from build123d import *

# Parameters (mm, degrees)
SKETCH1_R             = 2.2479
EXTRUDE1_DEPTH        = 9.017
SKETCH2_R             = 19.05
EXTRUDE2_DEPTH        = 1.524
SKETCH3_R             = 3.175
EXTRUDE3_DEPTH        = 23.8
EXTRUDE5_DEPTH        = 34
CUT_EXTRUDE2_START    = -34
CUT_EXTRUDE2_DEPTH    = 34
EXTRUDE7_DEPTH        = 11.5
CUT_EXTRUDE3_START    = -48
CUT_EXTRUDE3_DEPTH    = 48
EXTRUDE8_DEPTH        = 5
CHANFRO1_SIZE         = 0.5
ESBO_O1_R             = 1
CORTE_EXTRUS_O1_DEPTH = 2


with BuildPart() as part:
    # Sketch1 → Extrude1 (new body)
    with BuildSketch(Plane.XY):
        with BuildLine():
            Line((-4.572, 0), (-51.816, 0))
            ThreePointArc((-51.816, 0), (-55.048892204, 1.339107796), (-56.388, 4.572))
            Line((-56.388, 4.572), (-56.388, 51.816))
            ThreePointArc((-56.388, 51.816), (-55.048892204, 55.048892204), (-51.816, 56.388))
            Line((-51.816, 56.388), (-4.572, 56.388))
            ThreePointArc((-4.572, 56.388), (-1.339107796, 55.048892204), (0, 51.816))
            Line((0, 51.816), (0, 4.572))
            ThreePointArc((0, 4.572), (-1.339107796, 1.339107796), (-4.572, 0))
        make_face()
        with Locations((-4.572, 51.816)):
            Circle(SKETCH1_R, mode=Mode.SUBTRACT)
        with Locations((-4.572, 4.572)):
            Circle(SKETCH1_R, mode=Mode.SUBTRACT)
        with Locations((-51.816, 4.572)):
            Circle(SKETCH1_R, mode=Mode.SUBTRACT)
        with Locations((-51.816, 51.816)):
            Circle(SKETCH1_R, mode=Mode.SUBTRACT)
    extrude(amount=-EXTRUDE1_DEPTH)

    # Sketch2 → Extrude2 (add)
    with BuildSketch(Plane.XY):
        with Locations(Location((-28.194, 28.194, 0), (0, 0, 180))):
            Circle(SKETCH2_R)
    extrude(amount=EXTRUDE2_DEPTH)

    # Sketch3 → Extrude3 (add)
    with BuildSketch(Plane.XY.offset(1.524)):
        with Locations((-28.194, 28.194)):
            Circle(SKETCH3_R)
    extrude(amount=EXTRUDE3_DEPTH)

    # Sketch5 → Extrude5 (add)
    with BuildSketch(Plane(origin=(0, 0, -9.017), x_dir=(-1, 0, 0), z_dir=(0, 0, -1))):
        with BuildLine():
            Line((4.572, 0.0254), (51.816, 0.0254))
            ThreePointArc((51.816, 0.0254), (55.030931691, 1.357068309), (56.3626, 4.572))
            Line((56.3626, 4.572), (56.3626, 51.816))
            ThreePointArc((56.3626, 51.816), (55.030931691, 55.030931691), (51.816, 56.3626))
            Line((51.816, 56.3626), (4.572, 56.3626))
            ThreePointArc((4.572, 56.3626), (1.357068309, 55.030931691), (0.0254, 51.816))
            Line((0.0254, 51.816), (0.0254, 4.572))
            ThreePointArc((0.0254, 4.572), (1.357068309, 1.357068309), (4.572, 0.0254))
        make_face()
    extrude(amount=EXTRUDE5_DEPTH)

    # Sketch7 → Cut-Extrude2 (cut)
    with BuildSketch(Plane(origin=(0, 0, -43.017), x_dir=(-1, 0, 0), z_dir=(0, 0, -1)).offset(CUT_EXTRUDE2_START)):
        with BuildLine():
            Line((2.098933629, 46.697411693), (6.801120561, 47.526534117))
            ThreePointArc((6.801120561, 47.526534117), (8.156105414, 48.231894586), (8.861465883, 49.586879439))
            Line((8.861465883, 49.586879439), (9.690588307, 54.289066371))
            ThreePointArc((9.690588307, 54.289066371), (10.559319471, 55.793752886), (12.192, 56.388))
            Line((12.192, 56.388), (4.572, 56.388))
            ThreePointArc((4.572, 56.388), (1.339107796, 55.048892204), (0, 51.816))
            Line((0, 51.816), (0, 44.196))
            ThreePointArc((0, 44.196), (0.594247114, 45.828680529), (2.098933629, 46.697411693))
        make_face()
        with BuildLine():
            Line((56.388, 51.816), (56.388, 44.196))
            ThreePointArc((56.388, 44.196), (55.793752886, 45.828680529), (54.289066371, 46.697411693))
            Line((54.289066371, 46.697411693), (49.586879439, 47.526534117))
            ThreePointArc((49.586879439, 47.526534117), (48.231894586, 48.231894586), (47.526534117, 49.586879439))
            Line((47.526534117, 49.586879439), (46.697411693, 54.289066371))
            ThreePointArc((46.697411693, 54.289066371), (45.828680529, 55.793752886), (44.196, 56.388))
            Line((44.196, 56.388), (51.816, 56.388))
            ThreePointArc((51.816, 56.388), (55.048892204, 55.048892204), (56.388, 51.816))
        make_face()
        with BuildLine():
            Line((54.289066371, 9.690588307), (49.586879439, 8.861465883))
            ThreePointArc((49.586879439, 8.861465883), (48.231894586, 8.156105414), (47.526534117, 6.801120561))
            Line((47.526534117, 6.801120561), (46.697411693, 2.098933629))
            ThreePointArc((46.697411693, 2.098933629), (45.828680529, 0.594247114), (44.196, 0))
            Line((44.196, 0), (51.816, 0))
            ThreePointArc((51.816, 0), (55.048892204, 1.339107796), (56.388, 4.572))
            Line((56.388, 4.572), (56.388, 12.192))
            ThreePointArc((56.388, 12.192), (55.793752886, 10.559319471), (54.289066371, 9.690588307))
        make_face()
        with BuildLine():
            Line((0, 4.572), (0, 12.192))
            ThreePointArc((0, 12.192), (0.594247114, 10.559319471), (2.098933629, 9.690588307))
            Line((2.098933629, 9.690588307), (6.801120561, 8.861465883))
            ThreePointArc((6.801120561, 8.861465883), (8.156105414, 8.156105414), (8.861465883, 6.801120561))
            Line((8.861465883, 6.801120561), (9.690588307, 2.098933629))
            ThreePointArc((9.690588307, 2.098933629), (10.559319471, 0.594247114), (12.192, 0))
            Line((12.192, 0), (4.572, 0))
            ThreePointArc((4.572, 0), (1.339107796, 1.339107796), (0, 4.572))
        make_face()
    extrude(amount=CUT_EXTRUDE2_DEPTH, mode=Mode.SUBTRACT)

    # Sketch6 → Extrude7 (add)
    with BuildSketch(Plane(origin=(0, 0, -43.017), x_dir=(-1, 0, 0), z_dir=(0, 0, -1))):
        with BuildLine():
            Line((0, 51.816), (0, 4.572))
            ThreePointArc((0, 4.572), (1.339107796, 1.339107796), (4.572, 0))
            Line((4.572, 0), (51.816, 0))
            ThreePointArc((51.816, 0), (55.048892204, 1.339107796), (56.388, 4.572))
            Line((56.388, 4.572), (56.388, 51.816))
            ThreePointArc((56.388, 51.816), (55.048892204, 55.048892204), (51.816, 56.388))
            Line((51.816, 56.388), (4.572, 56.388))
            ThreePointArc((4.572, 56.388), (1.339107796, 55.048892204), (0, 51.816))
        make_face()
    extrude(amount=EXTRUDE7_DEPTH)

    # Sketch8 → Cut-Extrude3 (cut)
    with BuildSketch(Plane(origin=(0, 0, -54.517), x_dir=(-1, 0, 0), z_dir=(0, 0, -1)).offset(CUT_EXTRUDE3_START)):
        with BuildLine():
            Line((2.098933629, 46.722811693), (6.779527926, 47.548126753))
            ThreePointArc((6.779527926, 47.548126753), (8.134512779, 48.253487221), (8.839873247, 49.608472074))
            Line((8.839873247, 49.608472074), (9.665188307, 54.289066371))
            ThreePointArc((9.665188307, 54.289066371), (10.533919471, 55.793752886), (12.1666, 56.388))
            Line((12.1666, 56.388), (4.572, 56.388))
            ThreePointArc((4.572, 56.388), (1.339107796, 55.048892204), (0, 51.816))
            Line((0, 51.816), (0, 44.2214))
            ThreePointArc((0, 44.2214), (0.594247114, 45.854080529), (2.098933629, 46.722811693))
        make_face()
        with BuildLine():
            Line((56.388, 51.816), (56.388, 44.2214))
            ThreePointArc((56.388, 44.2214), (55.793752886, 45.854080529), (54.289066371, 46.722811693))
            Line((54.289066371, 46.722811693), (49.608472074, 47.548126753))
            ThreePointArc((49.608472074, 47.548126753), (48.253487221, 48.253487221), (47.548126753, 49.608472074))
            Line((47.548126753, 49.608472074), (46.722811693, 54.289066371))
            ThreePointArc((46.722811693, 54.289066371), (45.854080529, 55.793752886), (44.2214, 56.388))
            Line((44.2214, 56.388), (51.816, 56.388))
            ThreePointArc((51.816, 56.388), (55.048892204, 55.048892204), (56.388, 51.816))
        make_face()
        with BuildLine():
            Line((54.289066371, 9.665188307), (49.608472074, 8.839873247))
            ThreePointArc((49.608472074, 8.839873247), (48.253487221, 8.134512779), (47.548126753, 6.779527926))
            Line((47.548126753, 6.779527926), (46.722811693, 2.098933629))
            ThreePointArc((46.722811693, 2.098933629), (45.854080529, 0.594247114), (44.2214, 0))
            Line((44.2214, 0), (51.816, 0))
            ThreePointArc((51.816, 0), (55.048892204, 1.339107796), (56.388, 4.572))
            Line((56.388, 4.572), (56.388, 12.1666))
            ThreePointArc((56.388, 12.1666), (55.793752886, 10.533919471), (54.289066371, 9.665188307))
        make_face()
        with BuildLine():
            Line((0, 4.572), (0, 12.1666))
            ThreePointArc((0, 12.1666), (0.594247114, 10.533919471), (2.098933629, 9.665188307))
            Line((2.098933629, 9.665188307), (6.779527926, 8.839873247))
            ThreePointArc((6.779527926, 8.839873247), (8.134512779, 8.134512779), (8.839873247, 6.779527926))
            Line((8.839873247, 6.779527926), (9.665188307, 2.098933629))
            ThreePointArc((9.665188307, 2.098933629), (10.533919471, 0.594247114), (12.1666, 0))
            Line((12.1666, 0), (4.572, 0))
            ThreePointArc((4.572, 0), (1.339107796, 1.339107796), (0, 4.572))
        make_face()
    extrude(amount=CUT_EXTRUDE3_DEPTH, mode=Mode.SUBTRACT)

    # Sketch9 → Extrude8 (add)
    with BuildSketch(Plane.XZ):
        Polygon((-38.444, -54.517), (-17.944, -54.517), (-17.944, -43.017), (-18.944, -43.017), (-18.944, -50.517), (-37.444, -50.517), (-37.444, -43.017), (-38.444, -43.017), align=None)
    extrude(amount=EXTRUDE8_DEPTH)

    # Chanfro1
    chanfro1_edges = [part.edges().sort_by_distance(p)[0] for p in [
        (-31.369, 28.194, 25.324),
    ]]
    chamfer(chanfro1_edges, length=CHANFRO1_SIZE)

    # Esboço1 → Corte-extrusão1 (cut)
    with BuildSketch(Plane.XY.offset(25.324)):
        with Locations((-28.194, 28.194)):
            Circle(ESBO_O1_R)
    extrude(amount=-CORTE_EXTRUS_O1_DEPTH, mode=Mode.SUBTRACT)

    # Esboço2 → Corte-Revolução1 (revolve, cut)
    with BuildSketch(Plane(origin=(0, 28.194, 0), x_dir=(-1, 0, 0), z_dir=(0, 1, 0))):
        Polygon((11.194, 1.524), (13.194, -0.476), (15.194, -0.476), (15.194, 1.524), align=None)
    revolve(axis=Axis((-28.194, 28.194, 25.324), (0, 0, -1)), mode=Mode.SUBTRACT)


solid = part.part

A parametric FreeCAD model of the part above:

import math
import FreeCAD as App
import Part
import Sketcher

V = App.Vector
Q = App.Units.Quantity


def edges_at(feature, points):
    """Names of the edges that pass closest to the given points."""
    edges = feature.Shape.Edges
    near = lambda p: min(range(len(edges)), key=lambda i: edges[i].distToShape(Part.Vertex(*p))[0])
    return sorted({f"Edge{near(p) + 1}" for p in points})


def add_polygon(sketch, points):
    """Adds a closed chain of lines whose ends are joined by coincident constraints."""
    first, n = sketch.GeometryCount, len(points)
    for a, b in zip(points, points[1:] + points[:1]):
        sketch.addGeometry(Part.LineSegment(App.Vector(*a, 0), App.Vector(*b, 0)), False)
    for i in range(n):
        sketch.addConstraint(Sketcher.Constraint("Coincident", first + i, 2, first + (i + 1) % n, 1))

doc = App.newDocument("Part")
body = doc.addObject("PartDesign::Body", "Body")

sketch1 = body.newObject("Sketcher::SketchObject", "Sketch")
sketch1.AttachmentSupport = (doc.getObject("XY_Plane"), [""])
sketch1.MapMode = "FlatFace"
sketch1.addGeometry(Part.LineSegment(V(-51.8, 0, 0), V(-4.6, 0, 0)), False)
sketch1.addGeometry(Part.ArcOfCircle(Part.Circle(V(-4.6, 4.6, 0), V(0, 0, 1), 4.6), math.radians(-90), math.radians(0)), False)
sketch1.addGeometry(Part.LineSegment(V(0, 4.6, 0), V(0, 51.8, 0)), False)
sketch1.addGeometry(Part.ArcOfCircle(Part.Circle(V(-4.6, 51.8, 0), V(0, 0, 1), 4.6), math.radians(0), math.radians(90)), False)
sketch1.addGeometry(Part.LineSegment(V(-4.6, 56.4, 0), V(-51.8, 56.4, 0)), False)
sketch1.addGeometry(Part.ArcOfCircle(Part.Circle(V(-51.8, 51.8, 0), V(0, 0, 1), 4.6), math.radians(90), math.radians(180)), False)
sketch1.addGeometry(Part.LineSegment(V(-56.4, 51.8, 0), V(-56.4, 4.6, 0)), False)
sketch1.addGeometry(Part.ArcOfCircle(Part.Circle(V(-51.8, 4.6, 0), V(0, 0, 1), 4.6), math.radians(180), math.radians(270)), False)
sketch1.addGeometry(Part.Circle(V(-4.6, 4.6, 0), V(0, 0, 1), 2.2), False)
sketch1.addGeometry(Part.Circle(V(-51.8, 4.6, 0), V(0, 0, 1), 2.2), False)
sketch1.addGeometry(Part.Circle(V(-4.6, 51.8, 0), V(0, 0, 1), 2.2), False)
sketch1.addGeometry(Part.Circle(V(-51.8, 51.8, 0), V(0, 0, 1), 2.2), False)
sketch1.addConstraint(Sketcher.Constraint("Tangent", 0, 2, 1, 1))
sketch1.addConstraint(Sketcher.Constraint("Tangent", 1, 2, 2, 1))
sketch1.addConstraint(Sketcher.Constraint("Tangent", 2, 2, 3, 1))
sketch1.addConstraint(Sketcher.Constraint("Tangent", 3, 2, 4, 1))
sketch1.addConstraint(Sketcher.Constraint("Tangent", 4, 2, 5, 1))
sketch1.addConstraint(Sketcher.Constraint("Tangent", 5, 2, 6, 1))
sketch1.addConstraint(Sketcher.Constraint("Tangent", 6, 2, 7, 1))
sketch1.addConstraint(Sketcher.Constraint("Tangent", 7, 2, 0, 1))
sketch1.addConstraint(Sketcher.Constraint("Horizontal", 0))
sketch1.addConstraint(Sketcher.Constraint("Vertical", 2))
sketch1.addConstraint(Sketcher.Constraint("Horizontal", 4))
sketch1.addConstraint(Sketcher.Constraint("Vertical", 6))
sketch1.addConstraint(Sketcher.Constraint("Coincident", 8, 3, 1, 3))
sketch1.addConstraint(Sketcher.Constraint("Coincident", 9, 3, 7, 3))
sketch1.addConstraint(Sketcher.Constraint("Coincident", 10, 3, 3, 3))
sketch1.addConstraint(Sketcher.Constraint("Coincident", 11, 3, 5, 3))
sketch1.addConstraint(Sketcher.Constraint("Equal", 1, 3))
sketch1.addConstraint(Sketcher.Constraint("Equal", 3, 5))
sketch1.addConstraint(Sketcher.Constraint("Equal", 5, 7))
sketch1.addConstraint(Sketcher.Constraint("Equal", 8, 9))
sketch1.addConstraint(Sketcher.Constraint("Equal", 9, 10))
sketch1.addConstraint(Sketcher.Constraint("Equal", 10, 11))
sketch1.addConstraint(Sketcher.Constraint("PointOnObject", 0, 2, -1))
sketch1.addConstraint(Sketcher.Constraint("PointOnObject", 1, 2, -2))
sketch1.addConstraint(Sketcher.Constraint("Equal", 4, 2))
sketch1.addConstraint(Sketcher.Constraint("Radius", 1, 4.572))
sketch1.addConstraint(Sketcher.Constraint("Diameter", 8, 4.4958))
sketch1.addConstraint(Sketcher.Constraint("DistanceX", 0, 1, 0, 2, 47.244))
pad1 = body.newObject("PartDesign::Pad", "Pad")
pad1.Profile = sketch1
pad1.Length = 9.017
pad1.Reversed = True

sketch2 = body.newObject("Sketcher::SketchObject", "Sketch001")
sketch2.AttachmentSupport = (doc.getObject("XY_Plane"), [""])
sketch2.MapMode = "FlatFace"
sketch2.addGeometry(Part.Circle(V(-28, 28, 0), V(0, 0, 1), 19), False)
sketch2.addConstraint(Sketcher.Constraint("Diameter", 0, 38.1))
sketch2.addConstraint(Sketcher.Constraint("DistanceX", 0, 3, -1, 1, 28.194))
sketch2.addConstraint(Sketcher.Constraint("DistanceY", -1, 1, 0, 3, 28.194))
pad2 = body.newObject("PartDesign::Pad", "Pad001")
pad2.Profile = sketch2
pad2.Length = 1.524

sketch3 = body.newObject("Sketcher::SketchObject", "Sketch002")
sketch3.AttachmentSupport = (doc.getObject("XY_Plane"), [""])
sketch3.MapMode = "FlatFace"
sketch3.AttachmentOffset = App.Placement(V(0, 0, 1.524), App.Rotation())
sketch3.addGeometry(Part.Circle(V(-28.2, 28.2, 0), V(0, 0, 1), 3.2), False)
sketch3.addConstraint(Sketcher.Constraint("Diameter", 0, 6.35))
sketch3.addConstraint(Sketcher.Constraint("DistanceX", 0, 3, -1, 1, 28.194))
sketch3.addConstraint(Sketcher.Constraint("DistanceY", -1, 1, 0, 3, 28.194))
pad3 = body.newObject("PartDesign::Pad", "Pad002")
pad3.Profile = sketch3
pad3.Length = 23.8

sketch4 = body.newObject("Sketcher::SketchObject", "Sketch003")
sketch4.AttachmentSupport = (doc.getObject("XY_Plane"), [""])
sketch4.MapMode = "FlatFace"
sketch4.AttachmentOffset = App.Placement(V(0, 0, -9.017), App.Rotation())
sketch4.addGeometry(Part.LineSegment(V(-4.6, 0, 0), V(-51.8, 0, 0)), False)
sketch4.addGeometry(Part.ArcOfCircle(Part.Circle(V(-51.8, 4.6, 0), V(0, 0, 1), 4.5), math.radians(-180), math.radians(-90)), False)
sketch4.addGeometry(Part.LineSegment(V(-56.4, 4.6, 0), V(-56.4, 51.8, 0)), False)
sketch4.addGeometry(Part.ArcOfCircle(Part.Circle(V(-51.8, 51.8, 0), V(0, 0, 1), 4.5), math.radians(90), math.radians(180)), False)
sketch4.addGeometry(Part.LineSegment(V(-51.8, 56.4, 0), V(-4.6, 56.4, 0)), False)
sketch4.addGeometry(Part.ArcOfCircle(Part.Circle(V(-4.6, 51.8, 0), V(0, 0, 1), 4.5), math.radians(0), math.radians(90)), False)
sketch4.addGeometry(Part.LineSegment(V(0, 51.8, 0), V(0, 4.6, 0)), False)
sketch4.addGeometry(Part.ArcOfCircle(Part.Circle(V(-4.6, 4.6, 0), V(0, 0, 1), 4.5), math.radians(-90), math.radians(0)), False)
sketch4.addConstraint(Sketcher.Constraint("Tangent", 0, 2, 1, 2))
sketch4.addConstraint(Sketcher.Constraint("Tangent", 1, 1, 2, 1))
sketch4.addConstraint(Sketcher.Constraint("Tangent", 2, 2, 3, 2))
sketch4.addConstraint(Sketcher.Constraint("Tangent", 3, 1, 4, 1))
sketch4.addConstraint(Sketcher.Constraint("Tangent", 4, 2, 5, 2))
sketch4.addConstraint(Sketcher.Constraint("Tangent", 5, 1, 6, 1))
sketch4.addConstraint(Sketcher.Constraint("Tangent", 6, 2, 7, 2))
sketch4.addConstraint(Sketcher.Constraint("Tangent", 7, 1, 0, 1))
sketch4.addConstraint(Sketcher.Constraint("Horizontal", 0))
sketch4.addConstraint(Sketcher.Constraint("Vertical", 2))
sketch4.addConstraint(Sketcher.Constraint("Horizontal", 4))
sketch4.addConstraint(Sketcher.Constraint("Vertical", 6))
sketch4.addConstraint(Sketcher.Constraint("Equal", 1, 3))
sketch4.addConstraint(Sketcher.Constraint("Equal", 3, 5))
sketch4.addConstraint(Sketcher.Constraint("Equal", 5, 7))
sketch4.addConstraint(Sketcher.Constraint("Equal", 4, 2))
sketch4.addConstraint(Sketcher.Constraint("Radius", 1, 4.5466))
sketch4.addConstraint(Sketcher.Constraint("DistanceX", 0, 2, 0, 1, 47.244))
sketch4.addConstraint(Sketcher.Constraint("DistanceX", 1, 3, -1, 1, 51.816))
sketch4.addConstraint(Sketcher.Constraint("DistanceY", -1, 1, 1, 3, 4.572))
pad4 = body.newObject("PartDesign::Pad", "Pad003")
pad4.Profile = sketch4
pad4.Length = 34
pad4.Reversed = True

sketch5 = body.newObject("Sketcher::SketchObject", "Sketch004")
sketch5.AttachmentSupport = (doc.getObject("XY_Plane"), [""])
sketch5.MapMode = "FlatFace"
sketch5.AttachmentOffset = App.Placement(V(0, 0, -9.017), App.Rotation())
sketch5.addGeometry(Part.LineSegment(V(-2.1, 46.7, 0), V(-6.8, 47.5, 0)), False)
sketch5.addGeometry(Part.ArcOfCircle(Part.Circle(V(-6.4, 50, 0), V(0, 0, 1), 2.5), math.radians(-170), math.radians(-100)), False)
sketch5.addGeometry(Part.LineSegment(V(-8.9, 49.6, 0), V(-9.7, 54.3, 0)), False)
sketch5.addGeometry(Part.ArcOfCircle(Part.Circle(V(-12.2, 53.8, 0), V(0, 0, 1), 2.5), math.radians(10), math.radians(90)), False)
sketch5.addGeometry(Part.LineSegment(V(-12.2, 56.4, 0), V(-4.6, 56.4, 0)), False)
sketch5.addGeometry(Part.ArcOfCircle(Part.Circle(V(-4.6, 51.8, 0), V(0, 0, 1), 4.6), math.radians(0), math.radians(90)), False)
sketch5.addGeometry(Part.LineSegment(V(0, 51.8, 0), V(0, 44.2, 0)), False)
sketch5.addGeometry(Part.ArcOfCircle(Part.Circle(V(-2.5, 44.2, 0), V(0, 0, 1), 2.5), math.radians(0), math.radians(80)), False)
sketch5.addGeometry(Part.LineSegment(V(-56.4, 44.2, 0), V(-56.4, 51.8, 0)), False)
sketch5.addGeometry(Part.ArcOfCircle(Part.Circle(V(-51.8, 51.8, 0), V(0, 0, 1), 4.6), math.radians(90), math.radians(180)), False)
sketch5.addGeometry(Part.LineSegment(V(-51.8, 56.4, 0), V(-44.2, 56.4, 0)), False)
sketch5.addGeometry(Part.ArcOfCircle(Part.Circle(V(-44.2, 53.8, 0), V(0, 0, 1), 2.5), math.radians(90), math.radians(170)), False)
sketch5.addGeometry(Part.LineSegment(V(-46.7, 54.3, 0), V(-47.5, 49.6, 0)), False)
sketch5.addGeometry(Part.ArcOfCircle(Part.Circle(V(-50, 50, 0), V(0, 0, 1), 2.5), math.radians(-80), math.radians(-10)), False)
sketch5.addGeometry(Part.LineSegment(V(-49.6, 47.5, 0), V(-54.3, 46.7, 0)), False)
sketch5.addGeometry(Part.ArcOfCircle(Part.Circle(V(-53.8, 44.2, 0), V(0, 0, 1), 2.5), math.radians(100), math.radians(180)), False)
sketch5.addGeometry(Part.LineSegment(V(-54.3, 9.7, 0), V(-49.6, 8.9, 0)), False)
sketch5.addGeometry(Part.ArcOfCircle(Part.Circle(V(-50, 6.4, 0), V(0, 0, 1), 2.5), math.radians(10), math.radians(80)), False)
sketch5.addGeometry(Part.LineSegment(V(-47.5, 6.8, 0), V(-46.7, 2.1, 0)), False)
sketch5.addGeometry(Part.ArcOfCircle(Part.Circle(V(-44.2, 2.5, 0), V(0, 0, 1), 2.5), math.radians(-170), math.radians(-90)), False)
sketch5.addGeometry(Part.LineSegment(V(-44.2, 0, 0), V(-51.8, 0, 0)), False)
sketch5.addGeometry(Part.ArcOfCircle(Part.Circle(V(-51.8, 4.6, 0), V(0, 0, 1), 4.6), math.radians(180), math.radians(270)), False)
sketch5.addGeometry(Part.LineSegment(V(-56.4, 4.6, 0), V(-56.4, 12.2, 0)), False)
sketch5.addGeometry(Part.ArcOfCircle(Part.Circle(V(-53.8, 12.2, 0), V(0, 0, 1), 2.5), math.radians(180), math.radians(260)), False)
sketch5.addGeometry(Part.LineSegment(V(0, 12.2, 0), V(0, 4.6, 0)), False)
sketch5.addGeometry(Part.ArcOfCircle(Part.Circle(V(-4.6, 4.6, 0), V(0, 0, 1), 4.6), math.radians(-90), math.radians(0)), False)
sketch5.addGeometry(Part.LineSegment(V(-4.6, 0, 0), V(-12.2, 0, 0)), False)
sketch5.addGeometry(Part.ArcOfCircle(Part.Circle(V(-12.2, 2.5, 0), V(0, 0, 1), 2.5), math.radians(-90), math.radians(-10)), False)
sketch5.addGeometry(Part.LineSegment(V(-9.7, 2.1, 0), V(-8.9, 6.8, 0)), False)
sketch5.addGeometry(Part.ArcOfCircle(Part.Circle(V(-6.4, 6.4, 0), V(0, 0, 1), 2.5), math.radians(100), math.radians(170)), False)
sketch5.addGeometry(Part.LineSegment(V(-6.8, 8.9, 0), V(-2.1, 9.7, 0)), False)
sketch5.addGeometry(Part.ArcOfCircle(Part.Circle(V(-2.5, 12.2, 0), V(0, 0, 1), 2.5), math.radians(-80), math.radians(0)), False)
sketch5.addConstraint(Sketcher.Constraint("Tangent", 0, 2, 1, 2))
sketch5.addConstraint(Sketcher.Constraint("Tangent", 1, 1, 2, 1))
sketch5.addConstraint(Sketcher.Constraint("Tangent", 2, 2, 3, 1))
sketch5.addConstraint(Sketcher.Constraint("Tangent", 3, 2, 4, 1))
sketch5.addConstraint(Sketcher.Constraint("Tangent", 4, 2, 5, 2))
sketch5.addConstraint(Sketcher.Constraint("Tangent", 5, 1, 6, 1))
sketch5.addConstraint(Sketcher.Constraint("Tangent", 6, 2, 7, 1))
sketch5.addConstraint(Sketcher.Constraint("Tangent", 7, 2, 0, 1))
sketch5.addConstraint(Sketcher.Constraint("Tangent", 8, 2, 9, 2))
sketch5.addConstraint(Sketcher.Constraint("Tangent", 9, 1, 10, 1))
sketch5.addConstraint(Sketcher.Constraint("Tangent", 10, 2, 11, 1))
sketch5.addConstraint(Sketcher.Constraint("Tangent", 11, 2, 12, 1))
sketch5.addConstraint(Sketcher.Constraint("Tangent", 12, 2, 13, 2))
sketch5.addConstraint(Sketcher.Constraint("Tangent", 13, 1, 14, 1))
sketch5.addConstraint(Sketcher.Constraint("Tangent", 14, 2, 15, 1))
sketch5.addConstraint(Sketcher.Constraint("Tangent", 15, 2, 8, 1))
sketch5.addConstraint(Sketcher.Constraint("Tangent", 16, 2, 17, 2))
sketch5.addConstraint(Sketcher.Constraint("Tangent", 17, 1, 18, 1))
sketch5.addConstraint(Sketcher.Constraint("Tangent", 18, 2, 19, 1))
sketch5.addConstraint(Sketcher.Constraint("Tangent", 19, 2, 20, 1))
sketch5.addConstraint(Sketcher.Constraint("Tangent", 20, 2, 21, 2))
sketch5.addConstraint(Sketcher.Constraint("Tangent", 21, 1, 22, 1))
sketch5.addConstraint(Sketcher.Constraint("Tangent", 22, 2, 23, 1))
sketch5.addConstraint(Sketcher.Constraint("Tangent", 23, 2, 16, 1))
sketch5.addConstraint(Sketcher.Constraint("Tangent", 24, 2, 25, 2))
sketch5.addConstraint(Sketcher.Constraint("Tangent", 25, 1, 26, 1))
sketch5.addConstraint(Sketcher.Constraint("Tangent", 26, 2, 27, 1))
sketch5.addConstraint(Sketcher.Constraint("Tangent", 27, 2, 28, 1))
sketch5.addConstraint(Sketcher.Constraint("Tangent", 28, 2, 29, 2))
sketch5.addConstraint(Sketcher.Constraint("Tangent", 29, 1, 30, 1))
sketch5.addConstraint(Sketcher.Constraint("Tangent", 30, 2, 31, 1))
sketch5.addConstraint(Sketcher.Constraint("Tangent", 31, 2, 24, 1))
sketch5.addConstraint(Sketcher.Constraint("Horizontal", 4))
sketch5.addConstraint(Sketcher.Constraint("Vertical", 6))
sketch5.addConstraint(Sketcher.Constraint("Vertical", 8))
sketch5.addConstraint(Sketcher.Constraint("Horizontal", 10))
sketch5.addConstraint(Sketcher.Constraint("Horizontal", 20))
sketch5.addConstraint(Sketcher.Constraint("Vertical", 22))
sketch5.addConstraint(Sketcher.Constraint("Vertical", 24))
sketch5.addConstraint(Sketcher.Constraint("Horizontal", 26))
sketch5.addConstraint(Sketcher.Constraint("Equal", 1, 3))
sketch5.addConstraint(Sketcher.Constraint("Equal", 3, 7))
sketch5.addConstraint(Sketcher.Constraint("Equal", 5, 9))
sketch5.addConstraint(Sketcher.Constraint("Equal", 7, 11))
sketch5.addConstraint(Sketcher.Constraint("Equal", 11, 13))
sketch5.addConstraint(Sketcher.Constraint("Equal", 13, 15))
sketch5.addConstraint(Sketcher.Constraint("Equal", 15, 17))
sketch5.addConstraint(Sketcher.Constraint("Equal", 17, 19))
sketch5.addConstraint(Sketcher.Constraint("Equal", 9, 21))
sketch5.addConstraint(Sketcher.Constraint("Equal", 19, 23))
sketch5.addConstraint(Sketcher.Constraint("Equal", 21, 25))
sketch5.addConstraint(Sketcher.Constraint("Equal", 23, 27))
sketch5.addConstraint(Sketcher.Constraint("Equal", 27, 29))
sketch5.addConstraint(Sketcher.Constraint("Equal", 29, 31))
sketch5.addConstraint(Sketcher.Constraint("PointOnObject", 5, 1, -2))
sketch5.addConstraint(Sketcher.Constraint("PointOnObject", 19, 2, -1))
sketch5.addConstraint(Sketcher.Constraint("PointOnObject", 24, 2, -2))
sketch5.addConstraint(Sketcher.Constraint("PointOnObject", 25, 1, -1))
sketch5.addConstraint(Sketcher.Constraint("Perpendicular", 0, 12))
sketch5.addConstraint(Sketcher.Constraint("Perpendicular", 2, 14))
sketch5.addConstraint(Sketcher.Constraint("Perpendicular", 12, 16))
sketch5.addConstraint(Sketcher.Constraint("Perpendicular", 14, 18))
sketch5.addConstraint(Sketcher.Constraint("Perpendicular", 16, 28))
sketch5.addConstraint(Sketcher.Constraint("Perpendicular", 18, 30))
sketch5.addConstraint(Sketcher.Constraint("Horizontal", 5, 3, 9, 3))
sketch5.addConstraint(Sketcher.Constraint("Horizontal", 1, 3, 13, 3))
sketch5.addConstraint(Sketcher.Constraint("Horizontal", 7, 3, 15, 3))
sketch5.addConstraint(Sketcher.Constraint("Horizontal", 17, 3, 29, 3))
sketch5.addConstraint(Sketcher.Constraint("Horizontal", 23, 3, 31, 3))
sketch5.addConstraint(Sketcher.Constraint("Horizontal", 2, 2, 11, 2))
sketch5.addConstraint(Sketcher.Constraint("Vertical", 13, 3, 17, 3))
sketch5.addConstraint(Sketcher.Constraint("Vertical", 11, 3, 19, 3))
sketch5.addConstraint(Sketcher.Constraint("Vertical", 9, 3, 21, 3))
sketch5.addConstraint(Sketcher.Constraint("Equal", 26, 6))
sketch5.addConstraint(Sketcher.Constraint("Angle", 0, Q("170 deg")))
sketch5.addConstraint(Sketcher.Constraint("Radius", 1, 2.54))
sketch5.addConstraint(Sketcher.Constraint("Radius", 5, 4.572))
sketch5.addConstraint(Sketcher.Constraint("DistanceX", 4, 1, 4, 2, 7.62))
sketch5.addConstraint(Sketcher.Constraint("DistanceY", -1, 1, 3, 3, 53.848))
sketch5.addConstraint(Sketcher.Constraint("DistanceX", 9, 3, -1, 1, 51.816))
pocket1 = body.newObject("PartDesign::Pocket", "Pocket")
pocket1.Profile = sketch5
pocket1.Length = 34

sketch6 = body.newObject("Sketcher::SketchObject", "Sketch005")
sketch6.AttachmentSupport = (doc.getObject("XY_Plane"), [""])
sketch6.MapMode = "FlatFace"
sketch6.AttachmentOffset = App.Placement(V(0, 0, -43.017), App.Rotation())
sketch6.addGeometry(Part.LineSegment(V(0, 51.8, 0), V(0, 4.6, 0)), False)
sketch6.addGeometry(Part.ArcOfCircle(Part.Circle(V(-4.6, 4.6, 0), V(0, 0, 1), 4.6), math.radians(-90), math.radians(0)), False)
sketch6.addGeometry(Part.LineSegment(V(-4.6, 0, 0), V(-51.8, 0, 0)), False)
sketch6.addGeometry(Part.ArcOfCircle(Part.Circle(V(-51.8, 4.6, 0), V(0, 0, 1), 4.6), math.radians(180), math.radians(270)), False)
sketch6.addGeometry(Part.LineSegment(V(-56.4, 4.6, 0), V(-56.4, 51.8, 0)), False)
sketch6.addGeometry(Part.ArcOfCircle(Part.Circle(V(-51.8, 51.8, 0), V(0, 0, 1), 4.6), math.radians(90), math.radians(180)), False)
sketch6.addGeometry(Part.LineSegment(V(-51.8, 56.4, 0), V(-4.6, 56.4, 0)), False)
sketch6.addGeometry(Part.ArcOfCircle(Part.Circle(V(-4.6, 51.8, 0), V(0, 0, 1), 4.6), math.radians(0), math.radians(90)), False)
sketch6.addConstraint(Sketcher.Constraint("Tangent", 0, 2, 1, 2))
sketch6.addConstraint(Sketcher.Constraint("Tangent", 1, 1, 2, 1))
sketch6.addConstraint(Sketcher.Constraint("Tangent", 2, 2, 3, 2))
sketch6.addConstraint(Sketcher.Constraint("Tangent", 3, 1, 4, 1))
sketch6.addConstraint(Sketcher.Constraint("Tangent", 4, 2, 5, 2))
sketch6.addConstraint(Sketcher.Constraint("Tangent", 5, 1, 6, 1))
sketch6.addConstraint(Sketcher.Constraint("Tangent", 6, 2, 7, 2))
sketch6.addConstraint(Sketcher.Constraint("Tangent", 7, 1, 0, 1))
sketch6.addConstraint(Sketcher.Constraint("Vertical", 0))
sketch6.addConstraint(Sketcher.Constraint("Horizontal", 2))
sketch6.addConstraint(Sketcher.Constraint("Vertical", 4))
sketch6.addConstraint(Sketcher.Constraint("Horizontal", 6))
sketch6.addConstraint(Sketcher.Constraint("Equal", 1, 3))
sketch6.addConstraint(Sketcher.Constraint("Equal", 3, 5))
sketch6.addConstraint(Sketcher.Constraint("Equal", 5, 7))
sketch6.addConstraint(Sketcher.Constraint("PointOnObject", 0, 2, -2))
sketch6.addConstraint(Sketcher.Constraint("PointOnObject", 1, 1, -1))
sketch6.addConstraint(Sketcher.Constraint("Equal", 6, 0))
sketch6.addConstraint(Sketcher.Constraint("Radius", 1, 4.572))
sketch6.addConstraint(Sketcher.Constraint("DistanceX", 2, 2, 2, 1, 47.244))
pad5 = body.newObject("PartDesign::Pad", "Pad004")
pad5.Profile = sketch6
pad5.Length = 11.5
pad5.Reversed = True

sketch7 = body.newObject("Sketcher::SketchObject", "Sketch006")
sketch7.AttachmentSupport = (doc.getObject("XY_Plane"), [""])
sketch7.MapMode = "FlatFace"
sketch7.AttachmentOffset = App.Placement(V(0, 0, -6.517), App.Rotation())
sketch7.addGeometry(Part.LineSegment(V(-2.1, 46.7, 0), V(-6.8, 47.5, 0)), False)
sketch7.addGeometry(Part.ArcOfCircle(Part.Circle(V(-6.3, 50, 0), V(0, 0, 1), 2.5), math.radians(-170), math.radians(-100)), False)
sketch7.addGeometry(Part.LineSegment(V(-8.8, 49.6, 0), V(-9.7, 54.3, 0)), False)
sketch7.addGeometry(Part.ArcOfCircle(Part.Circle(V(-12.2, 53.8, 0), V(0, 0, 1), 2.5), math.radians(10), math.radians(90)), False)
sketch7.addGeometry(Part.LineSegment(V(-12.2, 56.4, 0), V(-4.6, 56.4, 0)), False)
sketch7.addGeometry(Part.ArcOfCircle(Part.Circle(V(-4.6, 51.8, 0), V(0, 0, 1), 4.6), math.radians(0), math.radians(90)), False)
sketch7.addGeometry(Part.LineSegment(V(0, 51.8, 0), V(0, 44.2, 0)), False)
sketch7.addGeometry(Part.ArcOfCircle(Part.Circle(V(-2.5, 44.2, 0), V(0, 0, 1), 2.5), math.radians(0), math.radians(80)), False)
sketch7.addGeometry(Part.LineSegment(V(-56.4, 44.2, 0), V(-56.4, 51.8, 0)), False)
sketch7.addGeometry(Part.ArcOfCircle(Part.Circle(V(-51.8, 51.8, 0), V(0, 0, 1), 4.6), math.radians(90), math.radians(180)), False)
sketch7.addGeometry(Part.LineSegment(V(-51.8, 56.4, 0), V(-44.2, 56.4, 0)), False)
sketch7.addGeometry(Part.ArcOfCircle(Part.Circle(V(-44.2, 53.8, 0), V(0, 0, 1), 2.5), math.radians(90), math.radians(170)), False)
sketch7.addGeometry(Part.LineSegment(V(-46.7, 54.3, 0), V(-47.5, 49.6, 0)), False)
sketch7.addGeometry(Part.ArcOfCircle(Part.Circle(V(-50, 50, 0), V(0, 0, 1), 2.5), math.radians(-80), math.radians(-10)), False)
sketch7.addGeometry(Part.LineSegment(V(-49.6, 47.5, 0), V(-54.3, 46.7, 0)), False)
sketch7.addGeometry(Part.ArcOfCircle(Part.Circle(V(-53.8, 44.2, 0), V(0, 0, 1), 2.5), math.radians(100), math.radians(180)), False)
sketch7.addGeometry(Part.LineSegment(V(-54.3, 9.7, 0), V(-49.6, 8.8, 0)), False)
sketch7.addGeometry(Part.ArcOfCircle(Part.Circle(V(-50, 6.3, 0), V(0, 0, 1), 2.5), math.radians(10), math.radians(80)), False)
sketch7.addGeometry(Part.LineSegment(V(-47.5, 6.8, 0), V(-46.7, 2.1, 0)), False)
sketch7.addGeometry(Part.ArcOfCircle(Part.Circle(V(-44.2, 2.5, 0), V(0, 0, 1), 2.5), math.radians(-170), math.radians(-90)), False)
sketch7.addGeometry(Part.LineSegment(V(-44.2, 0, 0), V(-51.8, 0, 0)), False)
sketch7.addGeometry(Part.ArcOfCircle(Part.Circle(V(-51.8, 4.6, 0), V(0, 0, 1), 4.6), math.radians(180), math.radians(270)), False)
sketch7.addGeometry(Part.LineSegment(V(-56.4, 4.6, 0), V(-56.4, 12.2, 0)), False)
sketch7.addGeometry(Part.ArcOfCircle(Part.Circle(V(-53.8, 12.2, 0), V(0, 0, 1), 2.5), math.radians(180), math.radians(260)), False)
sketch7.addGeometry(Part.LineSegment(V(0, 12.2, 0), V(0, 4.6, 0)), False)
sketch7.addGeometry(Part.ArcOfCircle(Part.Circle(V(-4.6, 4.6, 0), V(0, 0, 1), 4.6), math.radians(-90), math.radians(0)), False)
sketch7.addGeometry(Part.LineSegment(V(-4.6, 0, 0), V(-12.2, 0, 0)), False)
sketch7.addGeometry(Part.ArcOfCircle(Part.Circle(V(-12.2, 2.5, 0), V(0, 0, 1), 2.5), math.radians(-90), math.radians(-10)), False)
sketch7.addGeometry(Part.LineSegment(V(-9.7, 2.1, 0), V(-8.8, 6.8, 0)), False)
sketch7.addGeometry(Part.ArcOfCircle(Part.Circle(V(-6.3, 6.3, 0), V(0, 0, 1), 2.5), math.radians(100), math.radians(170)), False)
sketch7.addGeometry(Part.LineSegment(V(-6.8, 8.8, 0), V(-2.1, 9.7, 0)), False)
sketch7.addGeometry(Part.ArcOfCircle(Part.Circle(V(-2.5, 12.2, 0), V(0, 0, 1), 2.5), math.radians(-80), math.radians(0)), False)
sketch7.addConstraint(Sketcher.Constraint("Tangent", 0, 2, 1, 2))
sketch7.addConstraint(Sketcher.Constraint("Tangent", 1, 1, 2, 1))
sketch7.addConstraint(Sketcher.Constraint("Tangent", 2, 2, 3, 1))
sketch7.addConstraint(Sketcher.Constraint("Tangent", 3, 2, 4, 1))
sketch7.addConstraint(Sketcher.Constraint("Tangent", 4, 2, 5, 2))
sketch7.addConstraint(Sketcher.Constraint("Tangent", 5, 1, 6, 1))
sketch7.addConstraint(Sketcher.Constraint("Tangent", 6, 2, 7, 1))
sketch7.addConstraint(Sketcher.Constraint("Tangent", 7, 2, 0, 1))
sketch7.addConstraint(Sketcher.Constraint("Tangent", 8, 2, 9, 2))
sketch7.addConstraint(Sketcher.Constraint("Tangent", 9, 1, 10, 1))
sketch7.addConstraint(Sketcher.Constraint("Tangent", 10, 2, 11, 1))
sketch7.addConstraint(Sketcher.Constraint("Tangent", 11, 2, 12, 1))
sketch7.addConstraint(Sketcher.Constraint("Tangent", 12, 2, 13, 2))
sketch7.addConstraint(Sketcher.Constraint("Tangent", 13, 1, 14, 1))
sketch7.addConstraint(Sketcher.Constraint("Tangent", 14, 2, 15, 1))
sketch7.addConstraint(Sketcher.Constraint("Tangent", 15, 2, 8, 1))
sketch7.addConstraint(Sketcher.Constraint("Tangent", 16, 2, 17, 2))
sketch7.addConstraint(Sketcher.Constraint("Tangent", 17, 1, 18, 1))
sketch7.addConstraint(Sketcher.Constraint("Tangent", 18, 2, 19, 1))
sketch7.addConstraint(Sketcher.Constraint("Tangent", 19, 2, 20, 1))
sketch7.addConstraint(Sketcher.Constraint("Tangent", 20, 2, 21, 2))
sketch7.addConstraint(Sketcher.Constraint("Tangent", 21, 1, 22, 1))
sketch7.addConstraint(Sketcher.Constraint("Tangent", 22, 2, 23, 1))
sketch7.addConstraint(Sketcher.Constraint("Tangent", 23, 2, 16, 1))
sketch7.addConstraint(Sketcher.Constraint("Tangent", 24, 2, 25, 2))
sketch7.addConstraint(Sketcher.Constraint("Tangent", 25, 1, 26, 1))
sketch7.addConstraint(Sketcher.Constraint("Tangent", 26, 2, 27, 1))
sketch7.addConstraint(Sketcher.Constraint("Tangent", 27, 2, 28, 1))
sketch7.addConstraint(Sketcher.Constraint("Tangent", 28, 2, 29, 2))
sketch7.addConstraint(Sketcher.Constraint("Tangent", 29, 1, 30, 1))
sketch7.addConstraint(Sketcher.Constraint("Tangent", 30, 2, 31, 1))
sketch7.addConstraint(Sketcher.Constraint("Tangent", 31, 2, 24, 1))
sketch7.addConstraint(Sketcher.Constraint("Horizontal", 4))
sketch7.addConstraint(Sketcher.Constraint("Vertical", 6))
sketch7.addConstraint(Sketcher.Constraint("Vertical", 8))
sketch7.addConstraint(Sketcher.Constraint("Horizontal", 10))
sketch7.addConstraint(Sketcher.Constraint("Horizontal", 20))
sketch7.addConstraint(Sketcher.Constraint("Vertical", 22))
sketch7.addConstraint(Sketcher.Constraint("Vertical", 24))
sketch7.addConstraint(Sketcher.Constraint("Horizontal", 26))
sketch7.addConstraint(Sketcher.Constraint("Equal", 1, 3))
sketch7.addConstraint(Sketcher.Constraint("Equal", 3, 7))
sketch7.addConstraint(Sketcher.Constraint("Equal", 5, 9))
sketch7.addConstraint(Sketcher.Constraint("Equal", 7, 11))
sketch7.addConstraint(Sketcher.Constraint("Equal", 11, 13))
sketch7.addConstraint(Sketcher.Constraint("Equal", 13, 15))
sketch7.addConstraint(Sketcher.Constraint("Equal", 15, 17))
sketch7.addConstraint(Sketcher.Constraint("Equal", 17, 19))
sketch7.addConstraint(Sketcher.Constraint("Equal", 9, 21))
sketch7.addConstraint(Sketcher.Constraint("Equal", 19, 23))
sketch7.addConstraint(Sketcher.Constraint("Equal", 21, 25))
sketch7.addConstraint(Sketcher.Constraint("Equal", 23, 27))
sketch7.addConstraint(Sketcher.Constraint("Equal", 27, 29))
sketch7.addConstraint(Sketcher.Constraint("Equal", 29, 31))
sketch7.addConstraint(Sketcher.Constraint("PointOnObject", 5, 1, -2))
sketch7.addConstraint(Sketcher.Constraint("PointOnObject", 19, 2, -1))
sketch7.addConstraint(Sketcher.Constraint("PointOnObject", 24, 2, -2))
sketch7.addConstraint(Sketcher.Constraint("PointOnObject", 25, 1, -1))
sketch7.addConstraint(Sketcher.Constraint("Perpendicular", 0, 12))
sketch7.addConstraint(Sketcher.Constraint("Perpendicular", 2, 14))
sketch7.addConstraint(Sketcher.Constraint("Perpendicular", 12, 16))
sketch7.addConstraint(Sketcher.Constraint("Perpendicular", 14, 18))
sketch7.addConstraint(Sketcher.Constraint("Perpendicular", 16, 28))
sketch7.addConstraint(Sketcher.Constraint("Perpendicular", 18, 30))
sketch7.addConstraint(Sketcher.Constraint("Horizontal", 5, 3, 9, 3))
sketch7.addConstraint(Sketcher.Constraint("Horizontal", 1, 3, 13, 3))
sketch7.addConstraint(Sketcher.Constraint("Horizontal", 7, 3, 15, 3))
sketch7.addConstraint(Sketcher.Constraint("Horizontal", 17, 3, 29, 3))
sketch7.addConstraint(Sketcher.Constraint("Horizontal", 23, 3, 31, 3))
sketch7.addConstraint(Sketcher.Constraint("Horizontal", 2, 2, 11, 2))
sketch7.addConstraint(Sketcher.Constraint("Vertical", 13, 3, 17, 3))
sketch7.addConstraint(Sketcher.Constraint("Vertical", 11, 3, 19, 3))
sketch7.addConstraint(Sketcher.Constraint("Vertical", 9, 3, 21, 3))
sketch7.addConstraint(Sketcher.Constraint("Equal", 26, 6))
sketch7.addConstraint(Sketcher.Constraint("Angle", 0, Q("170 deg")))
sketch7.addConstraint(Sketcher.Constraint("Radius", 1, 2.54))
sketch7.addConstraint(Sketcher.Constraint("Radius", 5, 4.572))
sketch7.addConstraint(Sketcher.Constraint("DistanceX", 4, 1, 4, 2, 7.5946))
sketch7.addConstraint(Sketcher.Constraint("DistanceY", -1, 1, 3, 3, 53.848))
sketch7.addConstraint(Sketcher.Constraint("DistanceX", 9, 3, -1, 1, 51.816))
pocket2 = body.newObject("PartDesign::Pocket", "Pocket001")
pocket2.Profile = sketch7
pocket2.Length = 48

sketch8 = body.newObject("Sketcher::SketchObject", "Sketch007")
sketch8.AttachmentSupport = (doc.getObject("XZ_Plane"), [""])
sketch8.MapMode = "FlatFace"
add_polygon(sketch8, [(-38.4, -54.5), (-17.9, -54.5), (-17.9, -43), (-18.9, -43), (-18.9, -50.5), (-37.4, -50.5), (-37.4, -43), (-38.4, -43)])
sketch8.addConstraint(Sketcher.Constraint("Horizontal", 0))
sketch8.addConstraint(Sketcher.Constraint("Vertical", 1))
sketch8.addConstraint(Sketcher.Constraint("Horizontal", 2))
sketch8.addConstraint(Sketcher.Constraint("Vertical", 3))
sketch8.addConstraint(Sketcher.Constraint("Horizontal", 4))
sketch8.addConstraint(Sketcher.Constraint("Vertical", 5))
sketch8.addConstraint(Sketcher.Constraint("Horizontal", 6))
sketch8.addConstraint(Sketcher.Constraint("Vertical", 7))
sketch8.addConstraint(Sketcher.Constraint("Horizontal", 2, 2, 5, 2))
sketch8.addConstraint(Sketcher.Constraint("Equal", 2, 6))
sketch8.addConstraint(Sketcher.Constraint("DistanceX", 2, 2, 2, 1, 1.0))
sketch8.addConstraint(Sketcher.Constraint("DistanceX", 0, 1, 0, 2, 20.5))
sketch8.addConstraint(Sketcher.Constraint("DistanceY", 1, 1, 1, 2, 11.5))
sketch8.addConstraint(Sketcher.Constraint("DistanceY", 3, 2, 3, 1, 7.5))
sketch8.addConstraint(Sketcher.Constraint("DistanceX", 0, 2, -1, 1, 17.944))
sketch8.addConstraint(Sketcher.Constraint("DistanceY", 0, 2, -1, 1, 54.517))
pad6 = body.newObject("PartDesign::Pad", "Pad005")
pad6.Profile = sketch8
pad6.Length = 5
doc.recompute()

chamfer = body.newObject("PartDesign::Chamfer", "Chamfer")
chamfer.Base = (pad6, edges_at(pad6, [(-31.369, 28.194, 25.324)]))
chamfer.Size = 0.5

sketch9 = body.newObject("Sketcher::SketchObject", "Sketch008")
sketch9.AttachmentSupport = (doc.getObject("XY_Plane"), [""])
sketch9.MapMode = "FlatFace"
sketch9.AttachmentOffset = App.Placement(V(0, 0, 25.324), App.Rotation())
sketch9.addGeometry(Part.Circle(V(-28.2, 28.2, 0), V(0, 0, 1), 1), False)
sketch9.addConstraint(Sketcher.Constraint("Diameter", 0, 2.0))
sketch9.addConstraint(Sketcher.Constraint("DistanceX", 0, 3, -1, 1, 28.194))
sketch9.addConstraint(Sketcher.Constraint("DistanceY", -1, 1, 0, 3, 28.194))
pocket3 = body.newObject("PartDesign::Pocket", "Pocket002")
pocket3.Profile = sketch9
pocket3.Length = 2

sketch10 = body.newObject("Sketcher::SketchObject", "Sketch009")
sketch10.AttachmentSupport = (doc.getObject("XZ_Plane"), [""])
sketch10.MapMode = "FlatFace"
sketch10.AttachmentOffset = App.Placement(V(0, 0, -28.194), App.Rotation())
add_polygon(sketch10, [(-11.2, 1.5), (-13.2, -0.5), (-15.2, -0.5), (-15.2, 1.5)])
sketch10.addGeometry(Part.LineSegment(V(-28.2, 1.5, 0), V(-28.2, -0.5, 0)), True)
sketch10.addConstraint(Sketcher.Constraint("Horizontal", 1))
sketch10.addConstraint(Sketcher.Constraint("Vertical", 2))
sketch10.addConstraint(Sketcher.Constraint("Horizontal", 3))
sketch10.addConstraint(Sketcher.Constraint("Vertical", 4))
sketch10.addConstraint(Sketcher.Constraint("Horizontal", 3, 2, 4, 1))
sketch10.addConstraint(Sketcher.Constraint("Horizontal", 1, 2, 4, 2))
sketch10.addConstraint(Sketcher.Constraint("Equal", 1, 2))
sketch10.addConstraint(Sketcher.Constraint("DistanceX", 1, 2, 1, 1, 2.0))
sketch10.addConstraint(Sketcher.Constraint("DistanceX", 3, 1, 3, 2, 4.0))
sketch10.addConstraint(Sketcher.Constraint("DistanceX", 4, 1, 2, 2, 13.0))
sketch10.addConstraint(Sketcher.Constraint("DistanceX", 0, 2, -1, 1, 13.194))
sketch10.addConstraint(Sketcher.Constraint("DistanceY", 0, 2, -1, 1, 0.476))
groove = body.newObject("PartDesign::Groove", "Groove")
groove.Profile = sketch10
groove.ReferenceAxis = (sketch10, ["Axis0"])
groove.Angle = 360

doc.recompute()
